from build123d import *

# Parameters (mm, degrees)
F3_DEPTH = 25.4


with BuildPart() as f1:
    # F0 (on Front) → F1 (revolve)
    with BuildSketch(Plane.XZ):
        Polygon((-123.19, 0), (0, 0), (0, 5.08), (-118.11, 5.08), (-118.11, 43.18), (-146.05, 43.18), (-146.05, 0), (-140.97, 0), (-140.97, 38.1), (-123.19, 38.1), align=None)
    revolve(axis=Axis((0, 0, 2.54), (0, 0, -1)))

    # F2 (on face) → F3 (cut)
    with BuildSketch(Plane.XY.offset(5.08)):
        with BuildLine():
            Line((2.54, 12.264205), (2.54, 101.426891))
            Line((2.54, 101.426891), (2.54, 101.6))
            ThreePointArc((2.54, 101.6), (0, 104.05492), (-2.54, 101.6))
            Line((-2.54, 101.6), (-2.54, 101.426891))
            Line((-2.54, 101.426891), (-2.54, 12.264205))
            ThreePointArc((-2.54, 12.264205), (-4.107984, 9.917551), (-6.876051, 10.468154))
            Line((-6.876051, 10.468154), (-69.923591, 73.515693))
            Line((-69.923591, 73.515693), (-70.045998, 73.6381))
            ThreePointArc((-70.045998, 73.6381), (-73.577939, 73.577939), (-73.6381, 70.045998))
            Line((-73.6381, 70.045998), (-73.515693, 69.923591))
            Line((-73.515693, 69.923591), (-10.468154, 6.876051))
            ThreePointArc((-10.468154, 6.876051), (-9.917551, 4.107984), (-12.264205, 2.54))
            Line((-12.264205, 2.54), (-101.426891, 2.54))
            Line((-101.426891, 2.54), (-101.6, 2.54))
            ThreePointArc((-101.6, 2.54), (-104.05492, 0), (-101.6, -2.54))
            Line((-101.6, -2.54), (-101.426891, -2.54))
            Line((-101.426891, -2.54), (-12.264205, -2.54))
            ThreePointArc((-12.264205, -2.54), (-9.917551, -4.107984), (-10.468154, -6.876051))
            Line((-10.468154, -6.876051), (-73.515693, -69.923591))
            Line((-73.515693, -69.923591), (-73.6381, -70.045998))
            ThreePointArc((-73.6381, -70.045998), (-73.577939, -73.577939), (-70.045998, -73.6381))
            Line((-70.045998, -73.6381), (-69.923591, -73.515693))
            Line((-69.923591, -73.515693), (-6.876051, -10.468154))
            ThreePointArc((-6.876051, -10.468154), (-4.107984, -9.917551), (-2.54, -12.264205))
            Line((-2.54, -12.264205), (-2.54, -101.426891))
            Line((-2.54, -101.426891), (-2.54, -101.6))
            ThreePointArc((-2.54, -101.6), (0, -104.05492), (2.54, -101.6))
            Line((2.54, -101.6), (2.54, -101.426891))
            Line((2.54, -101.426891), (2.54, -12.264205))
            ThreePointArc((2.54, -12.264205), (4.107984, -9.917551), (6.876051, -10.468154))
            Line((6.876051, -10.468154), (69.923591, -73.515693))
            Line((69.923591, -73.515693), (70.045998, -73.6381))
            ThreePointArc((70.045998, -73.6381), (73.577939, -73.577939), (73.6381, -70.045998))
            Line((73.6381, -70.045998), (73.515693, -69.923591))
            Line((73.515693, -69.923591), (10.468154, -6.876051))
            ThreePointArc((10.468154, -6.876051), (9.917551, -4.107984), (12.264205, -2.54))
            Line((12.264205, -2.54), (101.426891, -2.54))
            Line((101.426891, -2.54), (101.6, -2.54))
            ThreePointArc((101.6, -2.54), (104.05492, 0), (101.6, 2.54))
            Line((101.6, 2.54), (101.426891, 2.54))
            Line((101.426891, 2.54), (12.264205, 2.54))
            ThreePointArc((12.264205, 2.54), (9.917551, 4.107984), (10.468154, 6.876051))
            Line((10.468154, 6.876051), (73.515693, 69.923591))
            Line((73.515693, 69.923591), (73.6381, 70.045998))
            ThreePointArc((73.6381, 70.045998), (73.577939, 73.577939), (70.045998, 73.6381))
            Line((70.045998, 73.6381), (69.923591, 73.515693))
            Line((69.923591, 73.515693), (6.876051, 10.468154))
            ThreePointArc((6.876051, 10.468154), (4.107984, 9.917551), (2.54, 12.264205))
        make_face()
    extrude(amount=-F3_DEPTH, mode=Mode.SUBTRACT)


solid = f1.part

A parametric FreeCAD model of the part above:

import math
import FreeCAD as App
import Part
import Sketcher
Q = App.Units.Quantity

doc = App.newDocument("Part")
params = doc.addObject("Spreadsheet::Sheet", "Params")
for row, (alias, value) in enumerate([
    ("sketch1_width", "1.1 in"),
    ("sketch1_width2", "0.2 in"),
    ("sketch1_width3", "0.7 in"),
    ("sketch1_height", "1.5 in"),
    ("sketch1_width4", "4.85 in"),
    ("revolution_angle", "360 deg"),
    ("sketch2_radius", "0.1 in"),
    ("pocket1_length", "1 in"),
], start=1):
    params.set(f"A{row}", alias)
    params.set(f"B{row}", "=" + value)
    params.setAlias(f"B{row}", alias)

body = doc.addObject("PartDesign::Body", "Body")

# Sketch on XZ plane
sketch1 = body.newObject("Sketcher::SketchObject", "Sketch")
sketch1.AttachmentSupport = (doc.getObject("XZ_Plane"), [""])
sketch1.MapMode = "FlatFace"
sketch1.addGeometry(Part.LineSegment(App.Vector(-123, 0, 0), App.Vector(0, 0, 0)), False)
sketch1.addGeometry(Part.LineSegment(App.Vector(0, 0, 0), App.Vector(0, 5, 0)), False)
sketch1.addGeometry(Part.LineSegment(App.Vector(0, 5, 0), App.Vector(-118, 5, 0)), False)
sketch1.addGeometry(Part.LineSegment(App.Vector(-118, 5, 0), App.Vector(-118, 43, 0)), False)
sketch1.addGeometry(Part.LineSegment(App.Vector(-118, 43, 0), App.Vector(-146, 43, 0)), False)
sketch1.addGeometry(Part.LineSegment(App.Vector(-146, 43, 0), App.Vector(-146, 0, 0)), False)
sketch1.addGeometry(Part.LineSegment(App.Vector(-146, 0, 0), App.Vector(-141, 0, 0)), False)
sketch1.addGeometry(Part.LineSegment(App.Vector(-141, 0, 0), App.Vector(-141, 38, 0)), False)
sketch1.addGeometry(Part.LineSegment(App.Vector(-141, 38, 0), App.Vector(-123, 38, 0)), False)
sketch1.addGeometry(Part.LineSegment(App.Vector(-123, 38, 0), App.Vector(-123, 0, 0)), False)
sketch1.addConstraint(Sketcher.Constraint("Coincident", 0, 2, 1, 1))
sketch1.addConstraint(Sketcher.Constraint("Coincident", 1, 2, 2, 1))
sketch1.addConstraint(Sketcher.Constraint("Coincident", 2, 2, 3, 1))
sketch1.addConstraint(Sketcher.Constraint("Coincident", 3, 2, 4, 1))
sketch1.addConstraint(Sketcher.Constraint("Coincident", 4, 2, 5, 1))
sketch1.addConstraint(Sketcher.Constraint("Coincident", 5, 2, 6, 1))
sketch1.addConstraint(Sketcher.Constraint("Coincident", 6, 2, 7, 1))
sketch1.addConstraint(Sketcher.Constraint("Coincident", 7, 2, 8, 1))
sketch1.addConstraint(Sketcher.Constraint("Coincident", 8, 2, 9, 1))
sketch1.addConstraint(Sketcher.Constraint("Coincident", 9, 2, 0, 1))
sketch1.addConstraint(Sketcher.Constraint("Horizontal", 0))
sketch1.addConstraint(Sketcher.Constraint("Vertical", 1))
sketch1.addConstraint(Sketcher.Constraint("Horizontal", 2))
sketch1.addConstraint(Sketcher.Constraint("Vertical", 3))
sketch1.addConstraint(Sketcher.Constraint("Horizontal", 4))
sketch1.addConstraint(Sketcher.Constraint("Vertical", 5))
sketch1.addConstraint(Sketcher.Constraint("Horizontal", 6))
sketch1.addConstraint(Sketcher.Constraint("Vertical", 7))
sketch1.addConstraint(Sketcher.Constraint("Horizontal", 8))
sketch1.addConstraint(Sketcher.Constraint("Vertical", 9))
sketch1.addConstraint(Sketcher.Constraint("Coincident", 0, 2, -1, 1))
sketch1.addConstraint(Sketcher.Constraint("PointOnObject", 5, 2, -1))
sketch1.addConstraint(Sketcher.Constraint("Equal", 6, 1))
sketch1.addConstraint(Sketcher.Constraint("Equal", 3, 7))
sketch1.addConstraint(Sketcher.Constraint("DistanceX", 4, 2, 4, 1, Q("1.1 in")))
sketch1.addConstraint(Sketcher.Constraint("DistanceX", 6, 1, 6, 2, Q("0.2 in")))
sketch1.addConstraint(Sketcher.Constraint("DistanceX", 8, 1, 8, 2, Q("0.7 in")))
sketch1.addConstraint(Sketcher.Constraint("DistanceY", 3, 1, 3, 2, Q("1.5 in")))
sketch1.addConstraint(Sketcher.Constraint("DistanceX", 0, 1, 0, 2, Q("4.85 in")))
sketch1.setExpression("Constraints[24]", "Params.sketch1_width")
sketch1.setExpression("Constraints[25]", "Params.sketch1_width2")
sketch1.setExpression("Constraints[26]", "Params.sketch1_width3")
sketch1.setExpression("Constraints[27]", "Params.sketch1_height")
sketch1.setExpression("Constraints[28]", "Params.sketch1_width4")
revolution = body.newObject("PartDesign::Revolution", "Revolution")
revolution.Profile = sketch1
revolution.ReferenceAxis = (sketch1, ["V_Axis"])
revolution.setExpression("Angle", "Params.revolution_angle")

# Sketch on XY plane
sketch2 = body.newObject("Sketcher::SketchObject", "Sketch001")
sketch2.AttachmentSupport = (doc.getObject("XY_Plane"), [""])
sketch2.MapMode = "FlatFace"
sketch2.AttachmentOffset = App.Placement(App.Vector(0, 0, 0.2 * 25.4), App.Rotation())
sketch2.addGeometry(Part.LineSegment(App.Vector(2.54, 12.26, 0), App.Vector(2.54, 101.6, 0)), False)
sketch2.addGeometry(Part.ArcOfCircle(Part.Circle(App.Vector(0, 101.51, 0), App.Vector(0, 0, 1), 2.54), math.radians(2), math.radians(178)), False)
sketch2.addGeometry(Part.LineSegment(App.Vector(-2.54, 101.6, 0), App.Vector(-2.54, 12.26, 0)), False)
sketch2.addGeometry(Part.ArcOfCircle(Part.Circle(App.Vector(-5.08, 12.26, 0), App.Vector(0, 0, 1), 2.54), math.radians(-135), math.radians(0)), False)
sketch2.addGeometry(Part.LineSegment(App.Vector(-6.88, 10.47, 0), App.Vector(-69.92, 73.52, 0)), False)
sketch2.addGeometry(Part.LineSegment(App.Vector(-69.92, 73.52, 0), App.Vector(-70.05, 73.64, 0)), False)
sketch2.addGeometry(Part.ArcOfCircle(Part.Circle(App.Vector(-71.78, 71.78, 0), App.Vector(0, 0, 1), 2.54), math.radians(47), math.radians(223)), False)
sketch2.addGeometry(Part.LineSegment(App.Vector(-73.64, 70.05, 0), App.Vector(-73.52, 69.92, 0)), False)
sketch2.addGeometry(Part.LineSegment(App.Vector(-73.52, 69.92, 0), App.Vector(-10.47, 6.88, 0)), False)
sketch2.addGeometry(Part.ArcOfCircle(Part.Circle(App.Vector(-12.26, 5.08, 0), App.Vector(0, 0, 1), 2.54), math.radians(-90), math.radians(45)), False)
sketch2.addGeometry(Part.LineSegment(App.Vector(-12.26, 2.54, 0), App.Vector(-101.6, 2.54, 0)), False)
sketch2.addGeometry(Part.ArcOfCircle(Part.Circle(App.Vector(-101.51, 0, 0), App.Vector(0, 0, 1), 2.54), math.radians(92), math.radians(268)), False)
sketch2.addGeometry(Part.LineSegment(App.Vector(-101.6, -2.54, 0), App.Vector(-12.26, -2.54, 0)), False)
sketch2.addGeometry(Part.ArcOfCircle(Part.Circle(App.Vector(-12.26, -5.08, 0), App.Vector(0, 0, 1), 2.54), math.radians(-45), math.radians(90)), False)
sketch2.addGeometry(Part.LineSegment(App.Vector(-10.47, -6.88, 0), App.Vector(-73.52, -69.92, 0)), False)
sketch2.addGeometry(Part.LineSegment(App.Vector(-73.52, -69.92, 0), App.Vector(-73.64, -70.05, 0)), False)
sketch2.addGeometry(Part.ArcOfCircle(Part.Circle(App.Vector(-71.78, -71.78, 0), App.Vector(0, 0, 1), 2.54), math.radians(137), math.radians(313)), False)
sketch2.addGeometry(Part.LineSegment(App.Vector(-70.05, -73.64, 0), App.Vector(-69.92, -73.52, 0)), False)
sketch2.addGeometry(Part.LineSegment(App.Vector(-69.92, -73.52, 0), App.Vector(-6.88, -10.47, 0)), False)
sketch2.addGeometry(Part.ArcOfCircle(Part.Circle(App.Vector(-5.08, -12.26, 0), App.Vector(0, 0, 1), 2.54), math.radians(0), math.radians(135)), False)
sketch2.addGeometry(Part.LineSegment(App.Vector(-2.54, -12.26, 0), App.Vector(-2.54, -101.6, 0)), False)
sketch2.addGeometry(Part.ArcOfCircle(Part.Circle(App.Vector(0, -101.51, 0), App.Vector(0, 0, 1), 2.54), math.radians(-178), math.radians(-2)), False)
sketch2.addGeometry(Part.LineSegment(App.Vector(2.54, -101.6, 0), App.Vector(2.54, -12.26, 0)), False)
sketch2.addGeometry(Part.ArcOfCircle(Part.Circle(App.Vector(5.08, -12.26, 0), App.Vector(0, 0, 1), 2.54), math.radians(45), math.radians(180)), False)
sketch2.addGeometry(Part.LineSegment(App.Vector(6.88, -10.47, 0), App.Vector(69.92, -73.52, 0)), False)
sketch2.addGeometry(Part.LineSegment(App.Vector(69.92, -73.52, 0), App.Vector(70.05, -73.64, 0)), False)
sketch2.addGeometry(Part.ArcOfCircle(Part.Circle(App.Vector(71.78, -71.78, 0), App.Vector(0, 0, 1), 2.54), math.radians(-133), math.radians(43)), False)
sketch2.addGeometry(Part.LineSegment(App.Vector(73.64, -70.05, 0), App.Vector(73.52, -69.92, 0)), False)
sketch2.addGeometry(Part.LineSegment(App.Vector(73.52, -69.92, 0), App.Vector(10.47, -6.88, 0)), False)
sketch2.addGeometry(Part.ArcOfCircle(Part.Circle(App.Vector(12.26, -5.08, 0), App.Vector(0, 0, 1), 2.54), math.radians(90), math.radians(225)), False)
sketch2.addGeometry(Part.LineSegment(App.Vector(12.26, -2.54, 0), App.Vector(101.6, -2.54, 0)), False)
sketch2.addGeometry(Part.ArcOfCircle(Part.Circle(App.Vector(101.51, 0, 0), App.Vector(0, 0, 1), 2.54), math.radians(-88), math.radians(88)), False)
sketch2.addGeometry(Part.LineSegment(App.Vector(101.6, 2.54, 0), App.Vector(12.26, 2.54, 0)), False)
sketch2.addGeometry(Part.ArcOfCircle(Part.Circle(App.Vector(12.26, 5.08, 0), App.Vector(0, 0, 1), 2.54), math.radians(135), math.radians(270)), False)
sketch2.addGeometry(Part.LineSegment(App.Vector(10.47, 6.88, 0), App.Vector(73.52, 69.92, 0)), False)
sketch2.addGeometry(Part.LineSegment(App.Vector(73.52, 69.92, 0), App.Vector(73.64, 70.05, 0)), False)
sketch2.addGeometry(Part.ArcOfCircle(Part.Circle(App.Vector(71.78, 71.78, 0), App.Vector(0, 0, 1), 2.54), math.radians(-43), math.radians(133)), False)
sketch2.addGeometry(Part.LineSegment(App.Vector(70.05, 73.64, 0), App.Vector(69.92, 73.52, 0)), False)
sketch2.addGeometry(Part.LineSegment(App.Vector(69.92, 73.52, 0), App.Vector(6.88, 10.47, 0)), False)
sketch2.addGeometry(Part.ArcOfCircle(Part.Circle(App.Vector(5.08, 12.26, 0), App.Vector(0, 0, 1), 2.54), math.radians(180), math.radians(315)), False)
sketch2.addConstraint(Sketcher.Constraint("Coincident", 0, 2, 1, 1))
sketch2.addConstraint(Sketcher.Constraint("Coincident", 1, 2, 2, 1))
sketch2.addConstraint(Sketcher.Constraint("Tangent", 2, 2, 3, 2))
sketch2.addConstraint(Sketcher.Constraint("Tangent", 3, 1, 4, 1))
sketch2.addConstraint(Sketcher.Constraint("Coincident", 4, 2, 5, 1))
sketch2.addConstraint(Sketcher.Constraint("Coincident", 5, 2, 6, 1))
sketch2.addConstraint(Sketcher.Constraint("Coincident", 6, 2, 7, 1))
sketch2.addConstraint(Sketcher.Constraint("Coincident", 7, 2, 8, 1))
sketch2.addConstraint(Sketcher.Constraint("Tangent", 8, 2, 9, 2))
sketch2.addConstraint(Sketcher.Constraint("Tangent", 9, 1, 10, 1))
sketch2.addConstraint(Sketcher.Constraint("Coincident", 10, 2, 11, 1))
sketch2.addConstraint(Sketcher.Constraint("Coincident", 11, 2, 12, 1))
sketch2.addConstraint(Sketcher.Constraint("Tangent", 12, 2, 13, 2))
sketch2.addConstraint(Sketcher.Constraint("Tangent", 13, 1, 14, 1))
sketch2.addConstraint(Sketcher.Constraint("Coincident", 14, 2, 15, 1))
sketch2.addConstraint(Sketcher.Constraint("Coincident", 15, 2, 16, 1))
sketch2.addConstraint(Sketcher.Constraint("Coincident", 16, 2, 17, 1))
sketch2.addConstraint(Sketcher.Constraint("Coincident", 17, 2, 18, 1))
sketch2.addConstraint(Sketcher.Constraint("Tangent", 18, 2, 19, 2))
sketch2.addConstraint(Sketcher.Constraint("Tangent", 19, 1, 20, 1))
sketch2.addConstraint(Sketcher.Constraint("Coincident", 20, 2, 21, 1))
sketch2.addConstraint(Sketcher.Constraint("Coincident", 21, 2, 22, 1))
sketch2.addConstraint(Sketcher.Constraint("Tangent", 22, 2, 23, 2))
sketch2.addConstraint(Sketcher.Constraint("Tangent", 23, 1, 24, 1))
sketch2.addConstraint(Sketcher.Constraint("Coincident", 24, 2, 25, 1))
sketch2.addConstraint(Sketcher.Constraint("Coincident", 25, 2, 26, 1))
sketch2.addConstraint(Sketcher.Constraint("Coincident", 26, 2, 27, 1))
sketch2.addConstraint(Sketcher.Constraint("Coincident", 27, 2, 28, 1))
sketch2.addConstraint(Sketcher.Constraint("Tangent", 28, 2, 29, 2))
sketch2.addConstraint(Sketcher.Constraint("Tangent", 29, 1, 30, 1))
sketch2.addConstraint(Sketcher.Constraint("Coincident", 30, 2, 31, 1))
sketch2.addConstraint(Sketcher.Constraint("Coincident", 31, 2, 32, 1))
sketch2.addConstraint(Sketcher.Constraint("Tangent", 32, 2, 33, 2))
sketch2.addConstraint(Sketcher.Constraint("Tangent", 33, 1, 34, 1))
sketch2.addConstraint(Sketcher.Constraint("Coincident", 34, 2, 35, 1))
sketch2.addConstraint(Sketcher.Constraint("Coincident", 35, 2, 36, 1))
sketch2.addConstraint(Sketcher.Constraint("Coincident", 36, 2, 37, 1))
sketch2.addConstraint(Sketcher.Constraint("Coincident", 37, 2, 38, 1))
sketch2.addConstraint(Sketcher.Constraint("Tangent", 38, 2, 39, 2))
sketch2.addConstraint(Sketcher.Constraint("Tangent", 39, 1, 0, 1))
sketch2.addConstraint(Sketcher.Constraint("Vertical", 0))
sketch2.addConstraint(Sketcher.Constraint("Vertical", 2))
sketch2.addConstraint(Sketcher.Constraint("Horizontal", 10))
sketch2.addConstraint(Sketcher.Constraint("Horizontal", 12))
sketch2.addConstraint(Sketcher.Constraint("Vertical", 20))
sketch2.addConstraint(Sketcher.Constraint("Vertical", 22))
sketch2.addConstraint(Sketcher.Constraint("Horizontal", 30))
sketch2.addConstraint(Sketcher.Constraint("Horizontal", 32))
sketch2.addConstraint(Sketcher.Constraint("Equal", 1, 6))
sketch2.addConstraint(Sketcher.Constraint("Equal", 3, 9))
sketch2.addConstraint(Sketcher.Constraint("Equal", 6, 11))
sketch2.addConstraint(Sketcher.Constraint("Equal", 9, 13))
sketch2.addConstraint(Sketcher.Constraint("Equal", 11, 16))
sketch2.addConstraint(Sketcher.Constraint("Equal", 13, 19))
sketch2.addConstraint(Sketcher.Constraint("Equal", 16, 21))
sketch2.addConstraint(Sketcher.Constraint("Equal", 19, 23))
sketch2.addConstraint(Sketcher.Constraint("Equal", 21, 26))
sketch2.addConstraint(Sketcher.Constraint("Equal", 23, 29))
sketch2.addConstraint(Sketcher.Constraint("Equal", 26, 31))
sketch2.addConstraint(Sketcher.Constraint("Equal", 29, 33))
sketch2.addConstraint(Sketcher.Constraint("Equal", 31, 36))
sketch2.addConstraint(Sketcher.Constraint("Equal", 33, 39))
sketch2.addConstraint(Sketcher.Constraint("Symmetric", 1, 3, 21, 3, -1, 1))
sketch2.addConstraint(Sketcher.Constraint("Symmetric", 3, 3, 23, 3, -1, 1))
sketch2.addConstraint(Sketcher.Constraint("Symmetric", 6, 3, 26, 3, -1, 1))
sketch2.addConstraint(Sketcher.Constraint("Symmetric", 9, 3, 29, 3, -1, 1))
sketch2.addConstraint(Sketcher.Constraint("Symmetric", 11, 3, 31, 3, -1, 1))
sketch2.addConstraint(Sketcher.Constraint("Symmetric", 13, 3, 33, 3, -1, 1))
sketch2.addConstraint(Sketcher.Constraint("Symmetric", 16, 3, 36, 3, -1, 1))
sketch2.addConstraint(Sketcher.Constraint("Symmetric", 19, 3, 39, 3, -1, 1))
sketch2.addConstraint(Sketcher.Constraint("Symmetric", 4, 2, 24, 2, -1, 1))
sketch2.addConstraint(Sketcher.Constraint("Symmetric", 7, 2, 27, 2, -1, 1))
sketch2.addConstraint(Sketcher.Constraint("Symmetric", 14, 2, 34, 2, -1, 1))
sketch2.addConstraint(Sketcher.Constraint("Symmetric", 17, 2, 37, 2, -1, 1))
sketch2.addConstraint(Sketcher.Constraint("Symmetric", 19, 3, 23, 3, -2))
sketch2.addConstraint(Sketcher.Constraint("Symmetric", 16, 3, 26, 3, -2))
sketch2.addConstraint(Sketcher.Constraint("Symmetric", 13, 3, 29, 3, -2))
sketch2.addConstraint(Sketcher.Constraint("Symmetric", 17, 2, 24, 2, -2))
sketch2.addConstraint(Sketcher.Constraint("Symmetric", 14, 2, 27, 2, -2))
sketch2.addConstraint(Sketcher.Constraint("PointOnObject", 1, 3, -2))
sketch2.addConstraint(Sketcher.Constraint("PointOnObject", 11, 3, -1))
sketch2.addConstraint(Sketcher.Constraint("Parallel", 4, 5))
sketch2.addConstraint(Sketcher.Constraint("Parallel", 5, 7))
sketch2.addConstraint(Sketcher.Constraint("Parallel", 4, 8))
sketch2.addConstraint(Sketcher.Constraint("Perpendicular", 8, 14))
sketch2.addConstraint(Sketcher.Constraint("Parallel", 14, 15))
sketch2.addConstraint(Sketcher.Constraint("Parallel", 15, 17))
sketch2.addConstraint(Sketcher.Constraint("Parallel", 24, 25))
sketch2.addConstraint(Sketcher.Constraint("Parallel", 25, 27))
sketch2.addConstraint(Sketcher.Constraint("Parallel", 34, 35))
sketch2.addConstraint(Sketcher.Constraint("Parallel", 35, 37))
sketch2.addConstraint(Sketcher.Constraint("Equal", 32, 0))
sketch2.addConstraint(Sketcher.Constraint("Equal", 5, 7))
sketch2.addConstraint(Sketcher.Constraint("Equal", 4, 8))
sketch2.addConstraint(Sketcher.Constraint("Radius", 3, Q("0.1 in")))
sketch2.addConstraint(Sketcher.Constraint("DistanceY", -1, 1, 0, 2, Q("4 in")))
sketch2.addConstraint(Sketcher.Constraint("DistanceX", 10, 2, -1, 1, Q("4 in")))
sketch2.addConstraint(Sketcher.Constraint("DistanceX", 3, 3, -1, 1, Q("0.2 in")))
sketch2.addConstraint(Sketcher.Constraint("DistanceY", -1, 1, 9, 3, Q("0.2 in")))
sketch2.addConstraint(Sketcher.Constraint("Radius", 1, 2.541474))
sketch2.addConstraint(Sketcher.Constraint("DistanceY", -1, 1, 5, 2, 73.6381))
sketch2.addConstraint(Sketcher.Constraint("DistanceY", 6, 3, 1, 3, 29.7326))
sketch2.addConstraint(Sketcher.Constraint("Distance", 5, 0.17311))
sketch2.setExpression("Constraints[94]", "Params.sketch2_radius")
pocket1 = body.newObject("PartDesign::Pocket", "Pocket")
pocket1.Profile = sketch2
pocket1.setExpression("Length", "Params.pocket1_length")

doc.recompute()
